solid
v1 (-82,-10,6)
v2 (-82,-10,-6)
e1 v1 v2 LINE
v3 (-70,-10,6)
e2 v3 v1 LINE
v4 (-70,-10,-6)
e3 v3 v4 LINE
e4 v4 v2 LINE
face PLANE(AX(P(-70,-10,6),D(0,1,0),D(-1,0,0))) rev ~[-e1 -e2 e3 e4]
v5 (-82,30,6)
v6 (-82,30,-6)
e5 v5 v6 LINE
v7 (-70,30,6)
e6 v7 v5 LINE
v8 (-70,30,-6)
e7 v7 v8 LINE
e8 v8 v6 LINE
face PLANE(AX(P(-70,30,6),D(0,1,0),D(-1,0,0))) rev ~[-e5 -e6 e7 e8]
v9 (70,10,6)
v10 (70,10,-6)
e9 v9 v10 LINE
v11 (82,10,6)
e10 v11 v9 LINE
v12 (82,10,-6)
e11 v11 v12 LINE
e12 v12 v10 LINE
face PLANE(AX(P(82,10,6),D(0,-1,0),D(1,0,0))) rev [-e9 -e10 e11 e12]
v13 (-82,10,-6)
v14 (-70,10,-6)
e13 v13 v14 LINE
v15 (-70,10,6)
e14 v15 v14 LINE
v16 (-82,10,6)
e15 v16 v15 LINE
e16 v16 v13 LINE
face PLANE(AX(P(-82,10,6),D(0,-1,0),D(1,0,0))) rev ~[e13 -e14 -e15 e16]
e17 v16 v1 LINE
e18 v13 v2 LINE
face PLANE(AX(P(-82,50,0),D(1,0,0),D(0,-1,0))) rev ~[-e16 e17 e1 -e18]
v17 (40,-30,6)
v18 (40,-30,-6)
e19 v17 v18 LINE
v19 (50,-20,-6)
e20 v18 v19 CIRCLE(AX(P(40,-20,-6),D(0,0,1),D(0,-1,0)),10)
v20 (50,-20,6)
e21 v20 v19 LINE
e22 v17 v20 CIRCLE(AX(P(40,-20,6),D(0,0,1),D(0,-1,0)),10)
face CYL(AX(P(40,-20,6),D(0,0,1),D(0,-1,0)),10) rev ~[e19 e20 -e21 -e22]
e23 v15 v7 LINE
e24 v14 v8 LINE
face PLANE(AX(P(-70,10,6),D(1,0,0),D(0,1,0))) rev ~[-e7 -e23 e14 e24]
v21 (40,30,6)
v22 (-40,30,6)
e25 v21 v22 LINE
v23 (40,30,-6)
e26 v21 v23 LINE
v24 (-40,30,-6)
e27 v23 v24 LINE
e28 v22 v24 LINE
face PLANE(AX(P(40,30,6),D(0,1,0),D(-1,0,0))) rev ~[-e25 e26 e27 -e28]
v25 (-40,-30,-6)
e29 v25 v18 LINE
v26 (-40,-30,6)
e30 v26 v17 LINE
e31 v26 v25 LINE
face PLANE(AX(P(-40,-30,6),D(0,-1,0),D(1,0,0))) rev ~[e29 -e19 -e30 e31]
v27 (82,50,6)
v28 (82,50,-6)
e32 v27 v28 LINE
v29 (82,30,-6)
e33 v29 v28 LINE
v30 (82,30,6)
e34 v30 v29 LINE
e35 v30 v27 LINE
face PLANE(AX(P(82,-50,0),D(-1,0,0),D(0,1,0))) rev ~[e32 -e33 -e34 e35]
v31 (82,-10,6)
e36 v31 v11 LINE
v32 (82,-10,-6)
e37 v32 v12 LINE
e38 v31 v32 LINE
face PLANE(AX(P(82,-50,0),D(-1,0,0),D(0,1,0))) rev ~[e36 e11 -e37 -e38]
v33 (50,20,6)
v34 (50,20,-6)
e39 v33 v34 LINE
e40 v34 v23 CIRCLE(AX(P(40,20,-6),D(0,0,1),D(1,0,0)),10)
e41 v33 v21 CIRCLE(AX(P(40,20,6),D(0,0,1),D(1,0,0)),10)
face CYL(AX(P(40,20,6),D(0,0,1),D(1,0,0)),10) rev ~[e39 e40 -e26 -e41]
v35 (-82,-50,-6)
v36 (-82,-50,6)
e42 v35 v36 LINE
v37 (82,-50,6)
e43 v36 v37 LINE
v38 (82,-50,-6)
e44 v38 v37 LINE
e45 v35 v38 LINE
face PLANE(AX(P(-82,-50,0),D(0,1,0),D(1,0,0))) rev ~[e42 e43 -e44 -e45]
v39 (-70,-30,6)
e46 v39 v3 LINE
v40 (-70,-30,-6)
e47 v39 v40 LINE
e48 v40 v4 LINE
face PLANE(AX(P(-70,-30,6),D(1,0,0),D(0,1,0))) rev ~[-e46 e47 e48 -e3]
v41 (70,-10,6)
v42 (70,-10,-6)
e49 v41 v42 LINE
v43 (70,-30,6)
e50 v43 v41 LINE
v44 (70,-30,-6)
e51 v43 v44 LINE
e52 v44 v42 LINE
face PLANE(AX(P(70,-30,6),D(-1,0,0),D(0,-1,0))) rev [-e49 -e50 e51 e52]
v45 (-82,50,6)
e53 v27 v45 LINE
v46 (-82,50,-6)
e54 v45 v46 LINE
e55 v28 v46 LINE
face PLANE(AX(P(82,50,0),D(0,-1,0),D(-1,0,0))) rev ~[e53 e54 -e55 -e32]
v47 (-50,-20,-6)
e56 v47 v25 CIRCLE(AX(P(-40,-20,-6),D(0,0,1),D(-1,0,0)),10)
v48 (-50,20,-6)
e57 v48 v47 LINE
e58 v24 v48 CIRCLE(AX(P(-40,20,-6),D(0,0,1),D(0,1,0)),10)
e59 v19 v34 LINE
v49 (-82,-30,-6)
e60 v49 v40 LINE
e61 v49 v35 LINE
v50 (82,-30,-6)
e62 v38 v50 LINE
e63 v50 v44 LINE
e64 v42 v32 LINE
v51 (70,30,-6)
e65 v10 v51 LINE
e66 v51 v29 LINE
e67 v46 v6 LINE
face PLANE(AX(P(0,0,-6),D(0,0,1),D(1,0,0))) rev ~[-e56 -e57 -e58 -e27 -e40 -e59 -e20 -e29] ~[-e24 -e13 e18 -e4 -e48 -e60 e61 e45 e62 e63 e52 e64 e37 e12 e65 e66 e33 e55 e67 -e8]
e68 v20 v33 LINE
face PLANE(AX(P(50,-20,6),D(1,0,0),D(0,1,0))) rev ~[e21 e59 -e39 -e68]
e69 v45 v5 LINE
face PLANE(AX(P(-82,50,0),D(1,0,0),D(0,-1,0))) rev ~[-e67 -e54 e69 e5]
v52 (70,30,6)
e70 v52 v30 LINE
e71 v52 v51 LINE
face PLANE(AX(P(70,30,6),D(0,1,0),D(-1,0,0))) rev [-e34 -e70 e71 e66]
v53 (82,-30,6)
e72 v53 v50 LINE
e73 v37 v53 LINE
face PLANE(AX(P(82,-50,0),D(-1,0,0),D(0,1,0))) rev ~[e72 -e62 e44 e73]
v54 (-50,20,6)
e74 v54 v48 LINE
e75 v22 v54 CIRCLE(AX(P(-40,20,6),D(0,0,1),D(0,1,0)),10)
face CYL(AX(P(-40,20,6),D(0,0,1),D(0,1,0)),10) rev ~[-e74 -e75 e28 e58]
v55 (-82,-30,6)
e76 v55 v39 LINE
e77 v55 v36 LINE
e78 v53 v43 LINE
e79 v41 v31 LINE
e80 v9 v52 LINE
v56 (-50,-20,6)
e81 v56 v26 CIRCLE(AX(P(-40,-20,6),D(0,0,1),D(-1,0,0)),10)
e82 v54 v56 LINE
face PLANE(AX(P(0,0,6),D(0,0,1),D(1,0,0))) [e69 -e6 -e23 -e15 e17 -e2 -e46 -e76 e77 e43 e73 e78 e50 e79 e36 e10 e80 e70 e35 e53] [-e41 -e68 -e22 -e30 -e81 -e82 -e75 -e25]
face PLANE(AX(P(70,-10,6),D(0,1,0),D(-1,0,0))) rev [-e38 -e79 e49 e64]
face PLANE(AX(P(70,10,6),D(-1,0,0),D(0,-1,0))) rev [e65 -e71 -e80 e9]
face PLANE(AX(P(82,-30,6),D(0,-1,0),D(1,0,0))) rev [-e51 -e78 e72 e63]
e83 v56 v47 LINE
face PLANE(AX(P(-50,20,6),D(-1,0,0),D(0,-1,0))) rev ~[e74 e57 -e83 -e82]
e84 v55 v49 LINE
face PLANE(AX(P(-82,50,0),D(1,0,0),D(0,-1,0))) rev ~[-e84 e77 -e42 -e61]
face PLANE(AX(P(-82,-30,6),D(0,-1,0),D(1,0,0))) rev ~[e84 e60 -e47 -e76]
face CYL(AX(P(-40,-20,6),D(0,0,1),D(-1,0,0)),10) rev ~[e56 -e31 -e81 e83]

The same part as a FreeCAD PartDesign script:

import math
import FreeCAD as App
import Part
import Sketcher
Q = App.Units.Quantity

doc = App.newDocument("Part")
body = doc.addObject("PartDesign::Body", "Body")

# Sketch on XY plane
sketch1 = body.newObject("Sketcher::SketchObject", "Sketch")
sketch1.AttachmentSupport = (doc.getObject("XY_Plane"), [""])
sketch1.MapMode = "FlatFace"
sketch1.addGeometry(Part.LineSegment(App.Vector(-82, 50, 0), App.Vector(-82, -50, 0)), False)
sketch1.addGeometry(Part.LineSegment(App.Vector(-82, -50, 0), App.Vector(82, -50, 0)), False)
sketch1.addGeometry(Part.LineSegment(App.Vector(82, -50, 0), App.Vector(82, 50, 0)), False)
sketch1.addGeometry(Part.LineSegment(App.Vector(82, 50, 0), App.Vector(-82, 50, 0)), False)
sketch1.addConstraint(Sketcher.Constraint("Coincident", 0, 2, 1, 1))
sketch1.addConstraint(Sketcher.Constraint("Coincident", 1, 2, 2, 1))
sketch1.addConstraint(Sketcher.Constraint("Coincident", 2, 2, 3, 1))
sketch1.addConstraint(Sketcher.Constraint("Coincident", 3, 2, 0, 1))
sketch1.addConstraint(Sketcher.Constraint("Vertical", 0))
sketch1.addConstraint(Sketcher.Constraint("Horizontal", 1))
sketch1.addConstraint(Sketcher.Constraint("Vertical", 2))
sketch1.addConstraint(Sketcher.Constraint("Horizontal", 3))
sketch1.addConstraint(Sketcher.Constraint("Symmetric", 0, 2, 2, 2, -1, 1))
sketch1.addConstraint(Sketcher.Constraint("DistanceX", 1, 1, 1, 2, Q("164 mm")))
sketch1.addConstraint(Sketcher.Constraint("DistanceY", 0, 2, 0, 1, Q("100 mm")))
pad1 = body.newObject("PartDesign::Pad", "Pad")
pad1.Profile = sketch1
pad1.Length = 12
pad1.Midplane = True

# Sketch on XY plane
sketch2 = body.newObject("Sketcher::SketchObject", "Sketch001")
sketch2.AttachmentSupport = (doc.getObject("XY_Plane"), [""])
sketch2.MapMode = "FlatFace"
sketch2.AttachmentOffset = App.Placement(App.Vector(0, 0, 6), App.Rotation())
sketch2.addGeometry(Part.LineSegment(App.Vector(-70, 30, 0), App.Vector(-82, 30, 0)), False)
sketch2.addGeometry(Part.LineSegment(App.Vector(-82, 30, 0), App.Vector(-82, 10, 0)), False)
sketch2.addGeometry(Part.LineSegment(App.Vector(-82, 10, 0), App.Vector(-70, 10, 0)), False)
sketch2.addGeometry(Part.LineSegment(App.Vector(-70, 10, 0), App.Vector(-70, 30, 0)), False)
sketch2.addGeometry(Part.LineSegment(App.Vector(-70, -10, 0), App.Vector(-82, -10, 0)), False)
sketch2.addGeometry(Part.LineSegment(App.Vector(-82, -10, 0), App.Vector(-82, -30, 0)), False)
sketch2.addGeometry(Part.LineSegment(App.Vector(-82, -30, 0), App.Vector(-70, -30, 0)), False)
sketch2.addGeometry(Part.LineSegment(App.Vector(-70, -30, 0), App.Vector(-70, -10, 0)), False)
sketch2.addConstraint(Sketcher.Constraint("Coincident", 0, 2, 1, 1))
sketch2.addConstraint(Sketcher.Constraint("Coincident", 1, 2, 2, 1))
sketch2.addConstraint(Sketcher.Constraint("Coincident", 2, 2, 3, 1))
sketch2.addConstraint(Sketcher.Constraint("Coincident", 3, 2, 0, 1))
sketch2.addConstraint(Sketcher.Constraint("Coincident", 4, 2, 5, 1))
sketch2.addConstraint(Sketcher.Constraint("Coincident", 5, 2, 6, 1))
sketch2.addConstraint(Sketcher.Constraint("Coincident", 6, 2, 7, 1))
sketch2.addConstraint(Sketcher.Constraint("Coincident", 7, 2, 4, 1))
sketch2.addConstraint(Sketcher.Constraint("Horizontal", 0))
sketch2.addConstraint(Sketcher.Constraint("Vertical", 1))
sketch2.addConstraint(Sketcher.Constraint("Horizontal", 2))
sketch2.addConstraint(Sketcher.Constraint("Vertical", 3))
sketch2.addConstraint(Sketcher.Constraint("Horizontal", 4))
sketch2.addConstraint(Sketcher.Constraint("Vertical", 5))
sketch2.addConstraint(Sketcher.Constraint("Horizontal", 6))
sketch2.addConstraint(Sketcher.Constraint("Vertical", 7))
sketch2.addConstraint(Sketcher.Constraint("Symmetric", 1, 2, 4, 2, -1))
sketch2.addConstraint(Sketcher.Constraint("Symmetric", 3, 2, 6, 2, -1))
sketch2.addConstraint(Sketcher.Constraint("DistanceX", 0, 2, 0, 1, Q("12 mm")))
sketch2.addConstraint(Sketcher.Constraint("DistanceY", 1, 2, 1, 1, Q("20 mm")))
sketch2.addConstraint(Sketcher.Constraint("DistanceY", 4, 2, 1, 2, Q("20 mm")))
sketch2.addConstraint(Sketcher.Constraint("DistanceX", 0, 2, -1, 1, Q("82 mm")))
pocket1 = body.newObject("PartDesign::Pocket", "Pocket")
pocket1.Profile = sketch2
pocket1.Type = "ThroughAll"
doc.recompute()

mirrored = body.newObject("PartDesign::Mirrored", "Mirrored")
mirrored.Originals = [pocket1]
mirrored.MirrorPlane = (doc.getObject("YZ_Plane"), [""])
body.Tip = mirrored

# Sketch on XY plane
sketch3 = body.newObject("Sketcher::SketchObject", "Sketch002")
sketch3.AttachmentSupport = (doc.getObject("XY_Plane"), [""])
sketch3.MapMode = "FlatFace"
sketch3.AttachmentOffset = App.Placement(App.Vector(0, 0, 6), App.Rotation())
sketch3.addGeometry(Part.ArcOfCircle(Part.Circle(App.Vector(-40, -20, 0), App.Vector(0, 0, 1), 10), math.radians(180), math.radians(270)), False)
sketch3.addGeometry(Part.LineSegment(App.Vector(-40, -30, 0), App.Vector(40, -30, 0)), False)
sketch3.addGeometry(Part.ArcOfCircle(Part.Circle(App.Vector(40, -20, 0), App.Vector(0, 0, 1), 10), math.radians(-90), math.radians(0)), False)
sketch3.addGeometry(Part.LineSegment(App.Vector(50, -20, 0), App.Vector(50, 20, 0)), False)
sketch3.addGeometry(Part.ArcOfCircle(Part.Circle(App.Vector(40, 20, 0), App.Vector(0, 0, 1), 10), math.radians(0), math.radians(90)), False)
sketch3.addGeometry(Part.LineSegment(App.Vector(40, 30, 0), App.Vector(-40, 30, 0)), False)
sketch3.addGeometry(Part.ArcOfCircle(Part.Circle(App.Vector(-40, 20, 0), App.Vector(0, 0, 1), 10), math.radians(90), math.radians(180)), False)
sketch3.addGeometry(Part.LineSegment(App.Vector(-50, 20, 0), App.Vector(-50, -20, 0)), False)
sketch3.addConstraint(Sketcher.Constraint("Tangent", 0, 2, 1, 1))
sketch3.addConstraint(Sketcher.Constraint("Tangent", 1, 2, 2, 1))
sketch3.addConstraint(Sketcher.Constraint("Tangent", 2, 2, 3, 1))
sketch3.addConstraint(Sketcher.Constraint("Tangent", 3, 2, 4, 1))
sketch3.addConstraint(Sketcher.Constraint("Tangent", 4, 2, 5, 1))
sketch3.addConstraint(Sketcher.Constraint("Tangent", 5, 2, 6, 1))
sketch3.addConstraint(Sketcher.Constraint("Tangent", 6, 2, 7, 1))
sketch3.addConstraint(Sketcher.Constraint("Tangent", 7, 2, 0, 1))
sketch3.addConstraint(Sketcher.Constraint("Horizontal", 1))
sketch3.addConstraint(Sketcher.Constraint("Vertical", 3))
sketch3.addConstraint(Sketcher.Constraint("Horizontal", 5))
sketch3.addConstraint(Sketcher.Constraint("Vertical", 7))
sketch3.addConstraint(Sketcher.Constraint("Equal", 0, 2))
sketch3.addConstraint(Sketcher.Constraint("Equal", 2, 4))
sketch3.addConstraint(Sketcher.Constraint("Equal", 4, 6))
sketch3.addConstraint(Sketcher.Constraint("Symmetric", 0, 3, 4, 3, -1, 1))
sketch3.addConstraint(Sketcher.Constraint("Radius", 0, Q("10 mm")))
sketch3.addConstraint(Sketcher.Constraint("DistanceY", 1, 2, 4, 2, Q("60 mm")))
sketch3.addConstraint(Sketcher.Constraint("DistanceX", 1, 1, 1, 2, Q("80 mm")))
pocket2 = body.newObject("PartDesign::Pocket", "Pocket001")
pocket2.Profile = sketch3
pocket2.Type = "ThroughAll"

doc.recompute()
